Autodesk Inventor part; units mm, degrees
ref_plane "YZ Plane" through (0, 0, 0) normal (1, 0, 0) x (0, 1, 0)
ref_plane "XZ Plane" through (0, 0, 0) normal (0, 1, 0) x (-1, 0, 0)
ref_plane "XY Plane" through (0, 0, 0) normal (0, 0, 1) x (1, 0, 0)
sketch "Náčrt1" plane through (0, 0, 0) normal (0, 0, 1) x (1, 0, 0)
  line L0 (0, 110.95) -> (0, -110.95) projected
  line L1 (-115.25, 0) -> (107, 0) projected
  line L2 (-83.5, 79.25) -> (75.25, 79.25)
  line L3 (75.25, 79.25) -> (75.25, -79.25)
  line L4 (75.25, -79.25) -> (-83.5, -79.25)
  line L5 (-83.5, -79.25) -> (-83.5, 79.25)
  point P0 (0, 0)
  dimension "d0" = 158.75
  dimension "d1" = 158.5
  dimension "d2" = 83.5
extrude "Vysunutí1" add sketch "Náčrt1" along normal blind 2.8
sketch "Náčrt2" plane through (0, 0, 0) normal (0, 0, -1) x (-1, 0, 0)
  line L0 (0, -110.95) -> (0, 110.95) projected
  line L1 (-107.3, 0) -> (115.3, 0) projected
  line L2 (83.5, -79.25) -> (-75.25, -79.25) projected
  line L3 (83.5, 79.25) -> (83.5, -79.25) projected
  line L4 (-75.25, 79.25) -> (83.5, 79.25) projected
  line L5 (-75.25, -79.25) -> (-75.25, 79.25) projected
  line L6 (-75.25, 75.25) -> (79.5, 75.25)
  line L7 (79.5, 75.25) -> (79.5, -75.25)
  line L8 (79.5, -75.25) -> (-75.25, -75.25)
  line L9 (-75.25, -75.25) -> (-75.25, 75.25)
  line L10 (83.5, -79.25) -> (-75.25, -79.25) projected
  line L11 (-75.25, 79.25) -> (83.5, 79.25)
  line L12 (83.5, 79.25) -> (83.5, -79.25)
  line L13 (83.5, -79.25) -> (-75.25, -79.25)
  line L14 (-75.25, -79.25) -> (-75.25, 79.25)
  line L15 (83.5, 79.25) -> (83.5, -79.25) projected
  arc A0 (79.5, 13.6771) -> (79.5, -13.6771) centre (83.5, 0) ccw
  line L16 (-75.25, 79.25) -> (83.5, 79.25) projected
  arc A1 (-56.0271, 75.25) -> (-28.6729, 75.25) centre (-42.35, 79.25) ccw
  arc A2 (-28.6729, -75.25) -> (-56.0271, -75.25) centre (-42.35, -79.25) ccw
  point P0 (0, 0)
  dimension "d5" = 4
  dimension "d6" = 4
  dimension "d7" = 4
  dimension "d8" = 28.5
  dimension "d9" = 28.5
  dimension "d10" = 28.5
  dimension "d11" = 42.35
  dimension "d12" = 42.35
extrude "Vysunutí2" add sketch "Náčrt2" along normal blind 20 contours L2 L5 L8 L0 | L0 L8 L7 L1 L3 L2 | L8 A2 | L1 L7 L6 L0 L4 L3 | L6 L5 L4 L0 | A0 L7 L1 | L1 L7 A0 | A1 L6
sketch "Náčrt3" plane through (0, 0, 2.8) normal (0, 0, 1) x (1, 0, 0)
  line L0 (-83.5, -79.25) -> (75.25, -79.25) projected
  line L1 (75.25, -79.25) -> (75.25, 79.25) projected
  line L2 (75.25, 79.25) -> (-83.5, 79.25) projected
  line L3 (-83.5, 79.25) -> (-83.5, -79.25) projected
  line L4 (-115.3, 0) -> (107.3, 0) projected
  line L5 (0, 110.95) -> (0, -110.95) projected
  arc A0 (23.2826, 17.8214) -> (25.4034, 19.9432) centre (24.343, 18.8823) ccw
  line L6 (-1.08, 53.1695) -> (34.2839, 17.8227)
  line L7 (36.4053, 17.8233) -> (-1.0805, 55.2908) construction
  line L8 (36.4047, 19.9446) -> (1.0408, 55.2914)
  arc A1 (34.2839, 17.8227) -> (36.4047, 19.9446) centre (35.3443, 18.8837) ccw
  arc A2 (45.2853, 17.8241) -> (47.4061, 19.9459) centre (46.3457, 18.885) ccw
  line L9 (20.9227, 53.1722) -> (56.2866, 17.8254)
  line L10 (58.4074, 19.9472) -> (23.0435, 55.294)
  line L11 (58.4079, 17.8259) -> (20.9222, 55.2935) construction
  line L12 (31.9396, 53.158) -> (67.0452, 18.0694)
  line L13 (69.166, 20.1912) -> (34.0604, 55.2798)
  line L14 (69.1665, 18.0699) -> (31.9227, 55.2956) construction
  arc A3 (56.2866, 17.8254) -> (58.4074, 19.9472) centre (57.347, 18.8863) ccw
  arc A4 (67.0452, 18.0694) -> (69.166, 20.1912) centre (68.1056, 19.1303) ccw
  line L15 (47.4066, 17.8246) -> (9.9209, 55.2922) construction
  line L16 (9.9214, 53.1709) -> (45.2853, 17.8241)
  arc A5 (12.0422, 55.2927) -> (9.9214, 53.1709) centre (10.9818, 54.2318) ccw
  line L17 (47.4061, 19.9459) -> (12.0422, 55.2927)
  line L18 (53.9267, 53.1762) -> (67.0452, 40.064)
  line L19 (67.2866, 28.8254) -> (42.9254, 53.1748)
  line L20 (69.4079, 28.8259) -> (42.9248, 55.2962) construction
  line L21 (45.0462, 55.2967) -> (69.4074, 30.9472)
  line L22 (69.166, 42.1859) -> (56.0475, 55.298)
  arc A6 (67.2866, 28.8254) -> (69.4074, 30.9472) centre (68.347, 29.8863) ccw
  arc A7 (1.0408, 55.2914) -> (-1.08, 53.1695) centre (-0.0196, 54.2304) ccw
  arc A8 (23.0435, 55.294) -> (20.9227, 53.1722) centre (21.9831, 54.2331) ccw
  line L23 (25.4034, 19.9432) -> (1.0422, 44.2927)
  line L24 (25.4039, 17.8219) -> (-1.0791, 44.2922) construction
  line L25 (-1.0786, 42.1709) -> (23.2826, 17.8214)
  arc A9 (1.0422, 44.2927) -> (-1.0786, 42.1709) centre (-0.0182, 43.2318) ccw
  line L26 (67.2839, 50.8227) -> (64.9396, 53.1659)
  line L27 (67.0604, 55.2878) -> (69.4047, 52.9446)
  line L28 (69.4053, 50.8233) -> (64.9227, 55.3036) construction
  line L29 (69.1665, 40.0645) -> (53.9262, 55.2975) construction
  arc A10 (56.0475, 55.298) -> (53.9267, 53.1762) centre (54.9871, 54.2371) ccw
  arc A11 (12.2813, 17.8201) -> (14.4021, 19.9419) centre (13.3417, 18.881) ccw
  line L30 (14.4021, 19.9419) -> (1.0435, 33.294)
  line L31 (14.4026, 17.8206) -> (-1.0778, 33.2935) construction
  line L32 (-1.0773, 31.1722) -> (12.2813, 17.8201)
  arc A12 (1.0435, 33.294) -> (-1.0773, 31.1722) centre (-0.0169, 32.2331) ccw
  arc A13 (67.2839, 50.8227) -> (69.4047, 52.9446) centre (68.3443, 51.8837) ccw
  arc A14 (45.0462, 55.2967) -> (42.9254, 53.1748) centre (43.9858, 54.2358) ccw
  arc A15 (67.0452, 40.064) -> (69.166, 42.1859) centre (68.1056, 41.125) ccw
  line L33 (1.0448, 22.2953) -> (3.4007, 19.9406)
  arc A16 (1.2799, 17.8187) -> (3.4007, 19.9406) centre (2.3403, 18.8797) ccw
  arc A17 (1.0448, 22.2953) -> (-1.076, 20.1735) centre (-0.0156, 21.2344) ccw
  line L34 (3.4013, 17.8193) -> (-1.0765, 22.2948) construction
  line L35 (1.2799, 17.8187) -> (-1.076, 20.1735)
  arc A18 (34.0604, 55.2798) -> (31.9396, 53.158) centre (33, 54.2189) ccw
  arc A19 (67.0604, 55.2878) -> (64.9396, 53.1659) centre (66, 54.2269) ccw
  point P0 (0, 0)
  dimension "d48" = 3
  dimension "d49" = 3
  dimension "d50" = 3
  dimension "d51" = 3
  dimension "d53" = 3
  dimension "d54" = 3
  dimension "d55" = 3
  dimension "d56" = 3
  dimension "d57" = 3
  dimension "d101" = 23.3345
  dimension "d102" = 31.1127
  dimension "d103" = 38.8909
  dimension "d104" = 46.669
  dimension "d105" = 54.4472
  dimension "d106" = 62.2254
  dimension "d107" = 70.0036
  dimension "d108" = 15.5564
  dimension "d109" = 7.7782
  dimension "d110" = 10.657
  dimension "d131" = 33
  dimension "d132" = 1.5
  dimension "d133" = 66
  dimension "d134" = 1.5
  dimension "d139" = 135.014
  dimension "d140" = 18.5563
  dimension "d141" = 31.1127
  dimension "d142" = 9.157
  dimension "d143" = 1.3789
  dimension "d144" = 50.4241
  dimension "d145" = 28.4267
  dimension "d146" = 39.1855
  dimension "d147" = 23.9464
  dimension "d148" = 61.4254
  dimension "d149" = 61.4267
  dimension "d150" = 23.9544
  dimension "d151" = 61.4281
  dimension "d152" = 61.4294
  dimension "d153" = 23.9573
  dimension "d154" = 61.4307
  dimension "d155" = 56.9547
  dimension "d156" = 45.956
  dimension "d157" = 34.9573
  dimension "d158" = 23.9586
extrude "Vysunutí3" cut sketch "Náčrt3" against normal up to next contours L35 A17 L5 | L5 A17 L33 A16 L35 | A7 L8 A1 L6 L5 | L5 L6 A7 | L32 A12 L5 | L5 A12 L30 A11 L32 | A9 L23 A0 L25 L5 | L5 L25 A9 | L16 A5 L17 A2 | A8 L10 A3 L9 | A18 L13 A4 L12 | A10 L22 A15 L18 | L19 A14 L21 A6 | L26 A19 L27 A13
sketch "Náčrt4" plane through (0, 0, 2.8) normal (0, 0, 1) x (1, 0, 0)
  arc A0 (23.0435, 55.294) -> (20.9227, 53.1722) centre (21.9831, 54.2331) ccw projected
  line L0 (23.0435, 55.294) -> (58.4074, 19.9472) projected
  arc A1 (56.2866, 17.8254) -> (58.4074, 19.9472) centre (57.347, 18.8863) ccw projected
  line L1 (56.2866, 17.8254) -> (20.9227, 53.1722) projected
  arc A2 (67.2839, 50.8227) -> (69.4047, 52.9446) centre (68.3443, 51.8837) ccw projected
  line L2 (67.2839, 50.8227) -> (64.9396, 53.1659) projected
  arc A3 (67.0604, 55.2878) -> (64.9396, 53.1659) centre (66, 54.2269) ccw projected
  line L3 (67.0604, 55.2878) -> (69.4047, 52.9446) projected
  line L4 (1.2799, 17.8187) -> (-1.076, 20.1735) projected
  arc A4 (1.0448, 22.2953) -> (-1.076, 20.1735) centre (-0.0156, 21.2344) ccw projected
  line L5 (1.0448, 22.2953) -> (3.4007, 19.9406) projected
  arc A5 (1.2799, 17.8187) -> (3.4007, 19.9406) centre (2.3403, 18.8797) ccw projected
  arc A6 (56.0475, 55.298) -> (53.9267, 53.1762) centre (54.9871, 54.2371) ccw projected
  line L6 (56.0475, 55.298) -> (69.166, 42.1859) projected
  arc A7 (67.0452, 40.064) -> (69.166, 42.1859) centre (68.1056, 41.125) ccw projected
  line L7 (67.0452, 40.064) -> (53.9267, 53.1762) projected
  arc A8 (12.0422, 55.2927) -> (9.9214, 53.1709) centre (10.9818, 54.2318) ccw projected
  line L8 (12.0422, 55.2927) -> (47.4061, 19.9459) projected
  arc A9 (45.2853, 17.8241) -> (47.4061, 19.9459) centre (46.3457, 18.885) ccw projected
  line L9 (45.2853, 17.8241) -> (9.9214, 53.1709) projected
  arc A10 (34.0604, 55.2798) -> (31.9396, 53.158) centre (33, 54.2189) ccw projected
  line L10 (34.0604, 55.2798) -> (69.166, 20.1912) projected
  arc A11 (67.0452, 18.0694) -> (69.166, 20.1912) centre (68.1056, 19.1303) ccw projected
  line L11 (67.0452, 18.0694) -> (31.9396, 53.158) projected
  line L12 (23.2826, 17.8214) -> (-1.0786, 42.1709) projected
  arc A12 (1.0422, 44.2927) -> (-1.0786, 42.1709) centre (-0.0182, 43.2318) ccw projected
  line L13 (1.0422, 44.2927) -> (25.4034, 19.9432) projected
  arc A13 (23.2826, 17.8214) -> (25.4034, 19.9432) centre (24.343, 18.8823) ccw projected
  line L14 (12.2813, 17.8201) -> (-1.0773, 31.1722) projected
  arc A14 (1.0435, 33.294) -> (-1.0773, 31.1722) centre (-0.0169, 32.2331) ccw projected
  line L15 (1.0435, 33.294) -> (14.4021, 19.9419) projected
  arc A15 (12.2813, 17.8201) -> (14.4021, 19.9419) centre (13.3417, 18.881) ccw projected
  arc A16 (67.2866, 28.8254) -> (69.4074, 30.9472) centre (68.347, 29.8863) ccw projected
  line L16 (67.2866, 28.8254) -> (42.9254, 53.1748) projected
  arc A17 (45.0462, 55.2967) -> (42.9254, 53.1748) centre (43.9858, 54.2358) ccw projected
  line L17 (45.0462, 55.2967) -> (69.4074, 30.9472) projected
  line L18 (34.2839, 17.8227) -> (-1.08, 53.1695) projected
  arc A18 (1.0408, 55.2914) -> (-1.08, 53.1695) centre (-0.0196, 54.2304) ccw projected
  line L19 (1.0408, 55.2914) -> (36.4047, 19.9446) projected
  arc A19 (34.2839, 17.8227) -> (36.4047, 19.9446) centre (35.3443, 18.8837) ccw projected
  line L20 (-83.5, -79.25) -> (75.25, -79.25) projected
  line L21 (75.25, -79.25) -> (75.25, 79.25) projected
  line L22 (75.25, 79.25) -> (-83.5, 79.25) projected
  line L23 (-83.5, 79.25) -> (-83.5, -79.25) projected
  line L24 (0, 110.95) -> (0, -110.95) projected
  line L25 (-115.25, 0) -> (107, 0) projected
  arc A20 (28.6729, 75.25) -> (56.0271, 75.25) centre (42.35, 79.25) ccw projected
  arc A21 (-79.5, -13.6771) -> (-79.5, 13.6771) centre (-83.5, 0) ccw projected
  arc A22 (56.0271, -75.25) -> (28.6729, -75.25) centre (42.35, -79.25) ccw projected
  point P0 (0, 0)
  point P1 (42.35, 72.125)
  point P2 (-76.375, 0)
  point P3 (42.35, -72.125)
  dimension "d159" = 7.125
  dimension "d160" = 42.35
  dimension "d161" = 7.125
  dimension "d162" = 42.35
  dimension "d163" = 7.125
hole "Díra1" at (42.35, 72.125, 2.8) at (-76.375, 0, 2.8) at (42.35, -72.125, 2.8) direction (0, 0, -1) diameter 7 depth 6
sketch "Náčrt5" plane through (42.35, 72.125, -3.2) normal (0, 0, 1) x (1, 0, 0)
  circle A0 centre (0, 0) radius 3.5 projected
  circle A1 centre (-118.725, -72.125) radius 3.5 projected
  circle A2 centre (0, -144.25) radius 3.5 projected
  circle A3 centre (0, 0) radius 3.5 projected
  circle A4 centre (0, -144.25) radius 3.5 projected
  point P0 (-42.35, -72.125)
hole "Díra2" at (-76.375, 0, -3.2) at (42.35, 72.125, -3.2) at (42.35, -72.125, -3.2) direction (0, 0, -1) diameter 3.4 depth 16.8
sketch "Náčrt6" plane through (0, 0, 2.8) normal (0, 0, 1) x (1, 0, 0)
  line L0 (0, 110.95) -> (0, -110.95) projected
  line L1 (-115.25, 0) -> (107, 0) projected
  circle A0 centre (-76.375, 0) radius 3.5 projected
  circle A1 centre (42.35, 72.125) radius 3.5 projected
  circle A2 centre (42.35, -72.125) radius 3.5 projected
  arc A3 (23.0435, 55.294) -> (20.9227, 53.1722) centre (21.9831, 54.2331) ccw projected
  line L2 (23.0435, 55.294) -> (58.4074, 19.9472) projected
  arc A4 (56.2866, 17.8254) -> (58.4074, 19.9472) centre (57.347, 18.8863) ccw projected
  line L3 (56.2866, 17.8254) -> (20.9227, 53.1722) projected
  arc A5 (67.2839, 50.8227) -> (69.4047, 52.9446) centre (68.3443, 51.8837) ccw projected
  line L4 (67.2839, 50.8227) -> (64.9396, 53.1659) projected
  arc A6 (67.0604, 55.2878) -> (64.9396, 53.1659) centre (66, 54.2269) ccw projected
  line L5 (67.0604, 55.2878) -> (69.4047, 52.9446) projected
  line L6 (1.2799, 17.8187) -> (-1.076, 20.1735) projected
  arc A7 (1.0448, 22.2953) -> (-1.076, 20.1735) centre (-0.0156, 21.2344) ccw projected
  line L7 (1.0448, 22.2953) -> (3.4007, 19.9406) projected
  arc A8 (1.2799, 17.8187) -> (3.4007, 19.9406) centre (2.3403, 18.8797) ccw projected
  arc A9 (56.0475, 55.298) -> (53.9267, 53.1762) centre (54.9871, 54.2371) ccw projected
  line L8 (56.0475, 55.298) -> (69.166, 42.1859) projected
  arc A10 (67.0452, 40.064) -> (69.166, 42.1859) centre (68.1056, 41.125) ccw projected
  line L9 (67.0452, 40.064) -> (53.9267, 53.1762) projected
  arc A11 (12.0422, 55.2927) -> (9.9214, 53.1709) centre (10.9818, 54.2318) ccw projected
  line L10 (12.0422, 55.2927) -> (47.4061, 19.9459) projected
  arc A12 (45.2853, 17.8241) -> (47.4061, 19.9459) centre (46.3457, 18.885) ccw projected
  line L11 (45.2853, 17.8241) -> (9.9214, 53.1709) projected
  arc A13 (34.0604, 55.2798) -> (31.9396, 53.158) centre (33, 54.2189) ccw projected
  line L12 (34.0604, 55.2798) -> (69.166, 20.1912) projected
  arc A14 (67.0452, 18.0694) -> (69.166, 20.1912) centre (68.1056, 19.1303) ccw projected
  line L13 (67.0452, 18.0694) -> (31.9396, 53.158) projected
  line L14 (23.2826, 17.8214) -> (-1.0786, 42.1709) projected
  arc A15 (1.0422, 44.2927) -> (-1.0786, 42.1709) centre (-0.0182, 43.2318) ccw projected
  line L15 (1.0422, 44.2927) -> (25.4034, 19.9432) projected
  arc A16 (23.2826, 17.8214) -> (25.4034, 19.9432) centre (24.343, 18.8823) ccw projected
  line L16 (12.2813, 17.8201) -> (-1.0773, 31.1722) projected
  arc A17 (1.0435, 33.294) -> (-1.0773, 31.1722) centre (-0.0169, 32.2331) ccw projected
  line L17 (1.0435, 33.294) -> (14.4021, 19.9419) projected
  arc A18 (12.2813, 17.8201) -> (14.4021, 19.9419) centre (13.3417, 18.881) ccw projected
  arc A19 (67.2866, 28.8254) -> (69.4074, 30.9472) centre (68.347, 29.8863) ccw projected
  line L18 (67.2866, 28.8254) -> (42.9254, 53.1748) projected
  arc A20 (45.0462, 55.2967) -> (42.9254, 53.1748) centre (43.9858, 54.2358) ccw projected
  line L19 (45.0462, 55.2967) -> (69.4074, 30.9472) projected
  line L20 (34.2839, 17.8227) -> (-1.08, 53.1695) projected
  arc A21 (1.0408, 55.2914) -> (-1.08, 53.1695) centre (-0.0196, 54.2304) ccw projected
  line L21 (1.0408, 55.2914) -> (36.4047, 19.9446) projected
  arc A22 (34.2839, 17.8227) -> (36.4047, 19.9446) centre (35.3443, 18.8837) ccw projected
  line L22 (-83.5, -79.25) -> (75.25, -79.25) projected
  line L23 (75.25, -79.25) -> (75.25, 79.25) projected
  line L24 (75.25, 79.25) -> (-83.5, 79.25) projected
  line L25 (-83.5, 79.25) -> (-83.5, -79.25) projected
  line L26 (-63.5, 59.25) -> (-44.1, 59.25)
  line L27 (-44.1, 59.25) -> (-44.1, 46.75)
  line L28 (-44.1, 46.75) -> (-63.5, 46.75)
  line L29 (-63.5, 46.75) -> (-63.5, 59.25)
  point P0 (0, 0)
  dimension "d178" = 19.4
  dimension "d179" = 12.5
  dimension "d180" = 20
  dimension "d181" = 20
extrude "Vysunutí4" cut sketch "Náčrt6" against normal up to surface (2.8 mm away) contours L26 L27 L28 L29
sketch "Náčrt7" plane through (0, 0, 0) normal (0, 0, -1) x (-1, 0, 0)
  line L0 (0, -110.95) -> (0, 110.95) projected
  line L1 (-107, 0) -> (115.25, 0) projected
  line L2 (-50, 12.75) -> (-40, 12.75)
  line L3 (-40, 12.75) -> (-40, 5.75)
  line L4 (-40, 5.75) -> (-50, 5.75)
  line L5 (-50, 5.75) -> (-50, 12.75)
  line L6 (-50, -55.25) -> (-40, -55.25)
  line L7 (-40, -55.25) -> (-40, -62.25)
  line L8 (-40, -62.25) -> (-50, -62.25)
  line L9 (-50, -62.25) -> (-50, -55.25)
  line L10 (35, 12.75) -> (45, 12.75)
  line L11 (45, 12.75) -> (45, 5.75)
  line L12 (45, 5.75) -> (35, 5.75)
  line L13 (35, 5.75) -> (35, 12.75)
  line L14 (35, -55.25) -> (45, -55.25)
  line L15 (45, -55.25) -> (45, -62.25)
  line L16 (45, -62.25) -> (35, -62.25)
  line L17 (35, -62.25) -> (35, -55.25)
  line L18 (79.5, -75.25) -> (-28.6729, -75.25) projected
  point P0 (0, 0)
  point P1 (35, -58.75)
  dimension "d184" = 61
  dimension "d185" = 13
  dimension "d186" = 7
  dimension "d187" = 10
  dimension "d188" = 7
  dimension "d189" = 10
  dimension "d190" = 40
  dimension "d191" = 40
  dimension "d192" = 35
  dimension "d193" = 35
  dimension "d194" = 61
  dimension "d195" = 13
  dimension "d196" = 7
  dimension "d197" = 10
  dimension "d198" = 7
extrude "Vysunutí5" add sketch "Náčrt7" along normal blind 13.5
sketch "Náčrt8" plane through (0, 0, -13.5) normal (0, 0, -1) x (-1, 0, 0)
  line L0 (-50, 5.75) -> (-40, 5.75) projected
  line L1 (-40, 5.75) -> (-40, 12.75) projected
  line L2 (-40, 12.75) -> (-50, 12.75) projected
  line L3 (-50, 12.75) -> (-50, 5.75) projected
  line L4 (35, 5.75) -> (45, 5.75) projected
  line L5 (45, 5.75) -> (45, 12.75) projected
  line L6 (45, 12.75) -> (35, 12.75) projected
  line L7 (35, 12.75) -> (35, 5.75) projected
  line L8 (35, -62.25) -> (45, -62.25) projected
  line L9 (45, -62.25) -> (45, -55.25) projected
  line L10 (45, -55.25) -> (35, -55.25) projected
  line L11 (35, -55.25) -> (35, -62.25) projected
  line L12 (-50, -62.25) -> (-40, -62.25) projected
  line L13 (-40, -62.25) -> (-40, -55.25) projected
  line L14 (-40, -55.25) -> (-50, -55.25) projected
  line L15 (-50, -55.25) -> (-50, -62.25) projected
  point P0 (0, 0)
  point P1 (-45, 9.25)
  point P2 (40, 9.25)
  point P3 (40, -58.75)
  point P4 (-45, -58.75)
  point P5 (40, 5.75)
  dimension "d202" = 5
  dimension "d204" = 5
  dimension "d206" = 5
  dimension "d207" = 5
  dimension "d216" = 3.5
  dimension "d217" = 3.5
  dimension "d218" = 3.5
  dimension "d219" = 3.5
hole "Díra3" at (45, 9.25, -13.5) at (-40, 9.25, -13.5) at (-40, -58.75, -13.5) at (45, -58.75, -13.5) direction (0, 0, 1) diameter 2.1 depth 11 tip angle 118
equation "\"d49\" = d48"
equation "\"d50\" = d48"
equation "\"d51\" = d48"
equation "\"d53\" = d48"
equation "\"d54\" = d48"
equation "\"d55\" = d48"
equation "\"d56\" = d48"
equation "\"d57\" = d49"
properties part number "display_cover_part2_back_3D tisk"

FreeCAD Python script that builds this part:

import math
import FreeCAD as App
import Part
import Sketcher
from FreeCAD import Vector
Q = App.Units.Quantity

doc = App.newDocument("Part")
params = doc.addObject("Spreadsheet::Sheet", "Params")
for row, (alias, value) in enumerate([
    ("sketch1_height", "158.5 mm"),
    ("sketch1_width", "158.75 mm"),
    ("pad1_length", "2.8 mm"),
    ("sketch2_height", "4 mm"),
    ("sketch2_radius", "14.25 mm"),
    ("sketch2_height2", "158.5 mm"),
    ("sketch2_width", "158.75 mm"),
    ("pad2_length", "20 mm"),
    ("sketch3_radius", "1.5 mm"),
    ("sketch3_length", "50 mm"),
    ("sketch4_diameter", "7 mm"),
    ("hole_diameter", "7 mm"),
    ("hole_depth", "6 mm"),
    ("sketch5_diameter", "3.4 mm"),
    ("hole2_diameter", "3.4 mm"),
    ("hole2_depth", "16.8 mm"),
    ("sketch6_width", "19.4 mm"),
    ("sketch6_height", "12.5 mm"),
    ("pocket2_length", "2.8 mm"),
    ("sketch7_width", "10 mm"),
    ("sketch7_height", "7 mm"),
    ("pad3_length", "13.5 mm"),
    ("sketch8_diameter", "2.1 mm"),
    ("hole3_diameter", "2.1 mm"),
    ("hole3_depth", "11 mm"),
], start=1):
    params.set(f"A{row}", alias)
    params.set(f"B{row}", "=" + value)
    params.setAlias(f"B{row}", alias)

body = doc.addObject("PartDesign::Body", "Body")

# Sketch on XY plane
sketch1 = doc.addObject("Sketcher::SketchObject", "Sketch")
body.addObject(sketch1)
sketch1.AttachmentSupport = (doc.XY_Plane, [""])
sketch1.MapMode = "FlatFace"
sketch1.addGeometry([
    Part.LineSegment(Vector(75, 79, 0), Vector(-84, 79, 0)),
    Part.LineSegment(Vector(-84, 79, 0), Vector(-84, -79, 0)),
    Part.LineSegment(Vector(-84, -79, 0), Vector(75, -79, 0)),
    Part.LineSegment(Vector(75, -79, 0), Vector(75, 79, 0)),
], False)
sketch1.addConstraint([
    Sketcher.Constraint("Coincident", 0, 2, 1, 1),
    Sketcher.Constraint("Coincident", 1, 2, 2, 1),
    Sketcher.Constraint("Coincident", 2, 2, 3, 1),
    Sketcher.Constraint("Coincident", 3, 2, 0, 1),
    Sketcher.Constraint("Horizontal", 0),
    Sketcher.Constraint("Vertical", 1),
    Sketcher.Constraint("Horizontal", 2),
    Sketcher.Constraint("Vertical", 3),
    Sketcher.Constraint("DistanceY", 1, 2, 1, 1, Q("158.5 mm")),
    Sketcher.Constraint("DistanceX", 0, 2, 0, 1, Q("158.75 mm")),
    Sketcher.Constraint("DistanceX", 0, 2, -1, 1, Q("83.5 mm")),
    Sketcher.Constraint("DistanceY", -1, 1, 0, 2, Q("79.25 mm")),
])
sketch1.setExpression("Constraints[8]", "Params.sketch1_height")
sketch1.setExpression("Constraints[9]", "Params.sketch1_width")
pad1 = doc.addObject("PartDesign::Pad", "Pad")
body.addObject(pad1)
pad1.Profile = sketch1
pad1.setExpression("Length", "Params.pad1_length")

# Sketch on XY plane
sketch2 = doc.addObject("Sketcher::SketchObject", "Sketch001")
body.addObject(sketch2)
sketch2.AttachmentSupport = (doc.XY_Plane, [""])
sketch2.MapMode = "FlatFace"
sketch2.addGeometry([
    Part.LineSegment(Vector(75.2, -79.2, 0), Vector(-83.5, -79.2, 0)),  # 0
    Part.LineSegment(Vector(-83.5, -79.2, 0), Vector(-83.5, 79.2, 0)),  # 1
    Part.LineSegment(Vector(-83.5, 79.2, 0), Vector(75.2, 79.2, 0)),  # 2
    Part.LineSegment(Vector(75.2, 79.2, 0), Vector(75.2, 75.2, 0)),  # 3
    Part.LineSegment(Vector(75.2, 75.2, 0), Vector(56, 75.2, 0)),  # 4
    Part.ArcOfCircle(Part.Circle(Vector(42.4, 79.2, 0), Vector(0, 0, 1), 14.3), math.radians(-164), math.radians(-16)),  # 5
    Part.LineSegment(Vector(28.7, 75.2, 0), Vector(-79.5, 75.2, 0)),  # 6
    Part.LineSegment(Vector(-79.5, 75.2, 0), Vector(-79.5, 13.7, 0)),  # 7
    Part.ArcOfCircle(Part.Circle(Vector(-83.5, 0, 0), Vector(0, 0, 1), 14.3), math.radians(-74), math.radians(74)),  # 8
    Part.LineSegment(Vector(-79.5, -13.7, 0), Vector(-79.5, -75.2, 0)),  # 9
    Part.LineSegment(Vector(-79.5, -75.2, 0), Vector(28.7, -75.2, 0)),  # 10
    Part.ArcOfCircle(Part.Circle(Vector(42.4, -79.2, 0), Vector(0, 0, 1), 14.3), math.radians(16), math.radians(164)),  # 11
    Part.LineSegment(Vector(56, -75.2, 0), Vector(75.2, -75.2, 0)),  # 12
    Part.LineSegment(Vector(75.2, -75.2, 0), Vector(75.2, -79.2, 0)),  # 13
], False)
sketch2.addConstraint([
    Sketcher.Constraint("Coincident", 0, 2, 1, 1),
    Sketcher.Constraint("Coincident", 1, 2, 2, 1),
    Sketcher.Constraint("Coincident", 2, 2, 3, 1),
    Sketcher.Constraint("Coincident", 3, 2, 4, 1),
    Sketcher.Constraint("Coincident", 4, 2, 5, 2),
    Sketcher.Constraint("Coincident", 5, 1, 6, 1),
    Sketcher.Constraint("Coincident", 6, 2, 7, 1),
    Sketcher.Constraint("Coincident", 7, 2, 8, 2),
    Sketcher.Constraint("Coincident", 8, 1, 9, 1),
    Sketcher.Constraint("Coincident", 9, 2, 10, 1),
    Sketcher.Constraint("Coincident", 10, 2, 11, 2),
    Sketcher.Constraint("Coincident", 11, 1, 12, 1),
    Sketcher.Constraint("Coincident", 12, 2, 13, 1),
    Sketcher.Constraint("Coincident", 13, 2, 0, 1),
    Sketcher.Constraint("Horizontal", 0),
    Sketcher.Constraint("Vertical", 1),
    Sketcher.Constraint("Horizontal", 2),
    Sketcher.Constraint("Vertical", 3),
    Sketcher.Constraint("Horizontal", 4),
    Sketcher.Constraint("Horizontal", 6),
    Sketcher.Constraint("Vertical", 7),
    Sketcher.Constraint("Vertical", 9),
    Sketcher.Constraint("Horizontal", 10),
    Sketcher.Constraint("Horizontal", 12),
    Sketcher.Constraint("Vertical", 13),
    Sketcher.Constraint("Equal", 5, 8),
    Sketcher.Constraint("Equal", 8, 11),
    Sketcher.Constraint("Symmetric", 5, 3, 11, 3, -1),
    Sketcher.Constraint("Symmetric", 7, 2, 8, 1, -1),
    Sketcher.Constraint("Symmetric", 3, 2, 12, 2, -1),
    Sketcher.Constraint("Horizontal", 11, 3, 0, 2),
    Sketcher.Constraint("Horizontal", 5, 3, 1, 2),
    Sketcher.Constraint("Horizontal", 4, 2, 5, 1),
    Sketcher.Constraint("Horizontal", 10, 2, 11, 1),
    Sketcher.Constraint("Vertical", 8, 3, 0, 2),
    Sketcher.Constraint("DistanceY", 3, 2, 3, 1, Q("4 mm")),
    Sketcher.Constraint("Radius", 5, Q("14.25 mm")),
    Sketcher.Constraint("DistanceX", 1, 2, 6, 2, Q("4 mm")),
    Sketcher.Constraint("DistanceX", -1, 1, 5, 3, Q("42.35 mm")),
    Sketcher.Constraint("DistanceY", 1, 1, 1, 2, Q("158.5 mm")),
    Sketcher.Constraint("DistanceX", 0, 2, 0, 1, Q("158.75 mm")),
    Sketcher.Constraint("DistanceX", 8, 3, -1, 1, Q("83.5 mm")),
])
sketch2.setExpression("Constraints[35]", "Params.sketch2_height")
sketch2.setExpression("Constraints[36]", "Params.sketch2_radius")
sketch2.setExpression("Constraints[39]", "Params.sketch2_height2")
sketch2.setExpression("Constraints[40]", "Params.sketch2_width")
pad2 = doc.addObject("PartDesign::Pad", "Pad001")
body.addObject(pad2)
pad2.Profile = sketch2
pad2.setExpression("Length", "Params.pad2_length")
pad2.Reversed = True

# Sketch on XY plane
sketch3 = doc.addObject("Sketcher::SketchObject", "Sketch002")
body.addObject(sketch3)
sketch3.AttachmentSupport = (doc.XY_Plane, [""])
sketch3.MapMode = "FlatFace"
sketch3.AttachmentOffset = App.Placement(Vector(0, 0, 2.8), App.Rotation())
sketch3.addGeometry([
    Part.LineSegment(Vector(-1.1, 20.2, 0), Vector(1.3, 17.8, 0)),  # 0
    Part.ArcOfCircle(Part.Circle(Vector(2.3, 18.9, 0), Vector(0, 0, 1), 1.5), math.radians(-135), math.radians(45)),  # 1
    Part.LineSegment(Vector(3.4, 19.9, 0), Vector(1, 22.3, 0)),  # 2
    Part.ArcOfCircle(Part.Circle(Vector(0, 21.2, 0), Vector(0, 0, 1), 1.5), math.radians(45), math.radians(225)),  # 3
    Part.ArcOfCircle(Part.Circle(Vector(0, 54.2, 0), Vector(0, 0, 1), 1.5), math.radians(45), math.radians(225)),  # 4
    Part.LineSegment(Vector(-1.1, 53.2, 0), Vector(34.3, 17.8, 0)),  # 5
    Part.ArcOfCircle(Part.Circle(Vector(35.3, 18.9, 0), Vector(0, 0, 1), 1.5), math.radians(-135), math.radians(45)),  # 6
    Part.LineSegment(Vector(36.4, 19.9, 0), Vector(1, 55.3, 0)),  # 7
    Part.LineSegment(Vector(-1.1, 31.2, 0), Vector(12.3, 17.8, 0)),  # 8
    Part.ArcOfCircle(Part.Circle(Vector(13.3, 18.9, 0), Vector(0, 0, 1), 1.5), math.radians(-135), math.radians(45)),  # 9
    Part.LineSegment(Vector(14.4, 19.9, 0), Vector(1, 33.3, 0)),  # 10
    Part.ArcOfCircle(Part.Circle(Vector(0, 32.2, 0), Vector(0, 0, 1), 1.5), math.radians(45), math.radians(225)),  # 11
    Part.ArcOfCircle(Part.Circle(Vector(0, 43.2, 0), Vector(0, 0, 1), 1.5), math.radians(45), math.radians(225)),  # 12
    Part.LineSegment(Vector(-1.1, 42.2, 0), Vector(23.3, 17.8, 0)),  # 13
    Part.ArcOfCircle(Part.Circle(Vector(24.3, 18.9, 0), Vector(0, 0, 1), 1.5), math.radians(-135), math.radians(45)),  # 14
    Part.LineSegment(Vector(25.4, 19.9, 0), Vector(1, 44.3, 0)),  # 15
    Part.LineSegment(Vector(9.9, 53.2, 0), Vector(45.3, 17.8, 0)),  # 16
    Part.ArcOfCircle(Part.Circle(Vector(46.3, 18.9, 0), Vector(0, 0, 1), 1.5), math.radians(-135), math.radians(45)),  # 17
    Part.LineSegment(Vector(47.4, 19.9, 0), Vector(12, 55.3, 0)),  # 18
    Part.ArcOfCircle(Part.Circle(Vector(11, 54.2, 0), Vector(0, 0, 1), 1.5), math.radians(45), math.radians(225)),  # 19
    Part.ArcOfCircle(Part.Circle(Vector(22, 54.2, 0), Vector(0, 0, 1), 1.5), math.radians(45), math.radians(225)),  # 20
    Part.LineSegment(Vector(20.9, 53.2, 0), Vector(56.3, 17.8, 0)),  # 21
    Part.ArcOfCircle(Part.Circle(Vector(57.3, 18.9, 0), Vector(0, 0, 1), 1.5), math.radians(-135), math.radians(45)),  # 22
    Part.LineSegment(Vector(58.4, 19.9, 0), Vector(23, 55.3, 0)),  # 23
    Part.ArcOfCircle(Part.Circle(Vector(33, 54.2, 0), Vector(0, 0, 1), 1.5), math.radians(45), math.radians(225)),  # 24
    Part.LineSegment(Vector(31.9, 53.2, 0), Vector(67, 18.1, 0)),  # 25
    Part.ArcOfCircle(Part.Circle(Vector(68.1, 19.1, 0), Vector(0, 0, 1), 1.5), math.radians(-135), math.radians(45)),  # 26
    Part.LineSegment(Vector(69.2, 20.2, 0), Vector(34.1, 55.3, 0)),  # 27
    Part.ArcOfCircle(Part.Circle(Vector(55, 54.2, 0), Vector(0, 0, 1), 1.5), math.radians(45), math.radians(225)),  # 28
    Part.LineSegment(Vector(53.9, 53.2, 0), Vector(67, 40.1, 0)),  # 29
    Part.ArcOfCircle(Part.Circle(Vector(68.1, 41.1, 0), Vector(0, 0, 1), 1.5), math.radians(-135), math.radians(45)),  # 30
    Part.LineSegment(Vector(69.2, 42.2, 0), Vector(56, 55.3, 0)),  # 31
    Part.LineSegment(Vector(42.9, 53.2, 0), Vector(67.3, 28.8, 0)),  # 32
    Part.ArcOfCircle(Part.Circle(Vector(68.3, 29.9, 0), Vector(0, 0, 1), 1.5), math.radians(-135), math.radians(45)),  # 33
    Part.LineSegment(Vector(69.4, 30.9, 0), Vector(45, 55.3, 0)),  # 34
    Part.ArcOfCircle(Part.Circle(Vector(44, 54.2, 0), Vector(0, 0, 1), 1.5), math.radians(45), math.radians(225)),  # 35
    Part.LineSegment(Vector(64.9, 53.2, 0), Vector(67.3, 50.8, 0)),  # 36
    Part.ArcOfCircle(Part.Circle(Vector(68.3, 51.9, 0), Vector(0, 0, 1), 1.5), math.radians(-135), math.radians(45)),  # 37
    Part.LineSegment(Vector(69.4, 52.9, 0), Vector(67.1, 55.3, 0)),  # 38
    Part.ArcOfCircle(Part.Circle(Vector(66, 54.2, 0), Vector(0, 0, 1), 1.5), math.radians(45), math.radians(225)),  # 39
], False)
sketch3.addConstraint([
    Sketcher.Constraint("Tangent", 0, 2, 1, 1),
    Sketcher.Constraint("Tangent", 1, 2, 2, 1),
    Sketcher.Constraint("Tangent", 2, 2, 3, 1),
    Sketcher.Constraint("Tangent", 3, 2, 0, 1),
    Sketcher.Constraint("Tangent", 4, 2, 5, 1),
    Sketcher.Constraint("Tangent", 5, 2, 6, 1),
    Sketcher.Constraint("Tangent", 6, 2, 7, 1),
    Sketcher.Constraint("Tangent", 7, 2, 4, 1),
    Sketcher.Constraint("Tangent", 8, 2, 9, 1),
    Sketcher.Constraint("Tangent", 9, 2, 10, 1),
    Sketcher.Constraint("Tangent", 10, 2, 11, 1),
    Sketcher.Constraint("Tangent", 11, 2, 8, 1),
    Sketcher.Constraint("Tangent", 12, 2, 13, 1),
    Sketcher.Constraint("Tangent", 13, 2, 14, 1),
    Sketcher.Constraint("Tangent", 14, 2, 15, 1),
    Sketcher.Constraint("Tangent", 15, 2, 12, 1),
    Sketcher.Constraint("Tangent", 16, 2, 17, 1),
    Sketcher.Constraint("Tangent", 17, 2, 18, 1),
    Sketcher.Constraint("Tangent", 18, 2, 19, 1),
    Sketcher.Constraint("Tangent", 19, 2, 16, 1),
    Sketcher.Constraint("Tangent", 20, 2, 21, 1),
    Sketcher.Constraint("Tangent", 21, 2, 22, 1),
    Sketcher.Constraint("Tangent", 22, 2, 23, 1),
    Sketcher.Constraint("Tangent", 23, 2, 20, 1),
    Sketcher.Constraint("Tangent", 24, 2, 25, 1),
    Sketcher.Constraint("Tangent", 25, 2, 26, 1),
    Sketcher.Constraint("Tangent", 26, 2, 27, 1),
    Sketcher.Constraint("Tangent", 27, 2, 24, 1),
    Sketcher.Constraint("Tangent", 28, 2, 29, 1),
    Sketcher.Constraint("Tangent", 29, 2, 30, 1),
    Sketcher.Constraint("Tangent", 30, 2, 31, 1),
    Sketcher.Constraint("Tangent", 31, 2, 28, 1),
    Sketcher.Constraint("Tangent", 32, 2, 33, 1),
    Sketcher.Constraint("Tangent", 33, 2, 34, 1),
    Sketcher.Constraint("Tangent", 34, 2, 35, 1),
    Sketcher.Constraint("Tangent", 35, 2, 32, 1),
    Sketcher.Constraint("Tangent", 36, 2, 37, 1),
    Sketcher.Constraint("Tangent", 37, 2, 38, 1),
    Sketcher.Constraint("Tangent", 38, 2, 39, 1),
    Sketcher.Constraint("Tangent", 39, 2, 36, 1),
    Sketcher.Constraint("Equal", 1, 3),
    Sketcher.Constraint("Equal", 3, 4),
    Sketcher.Constraint("Equal", 4, 6),
    Sketcher.Constraint("Equal", 6, 9),
    Sketcher.Constraint("Equal", 9, 11),
    Sketcher.Constraint("Equal", 11, 12),
    Sketcher.Constraint("Equal", 12, 14),
    Sketcher.Constraint("Equal", 14, 17),
    Sketcher.Constraint("Equal", 17, 19),
    Sketcher.Constraint("Equal", 19, 20),
    Sketcher.Constraint("Equal", 20, 22),
    Sketcher.Constraint("Equal", 22, 24),
    Sketcher.Constraint("Equal", 24, 26),
    Sketcher.Constraint("Equal", 26, 28),
    Sketcher.Constraint("Equal", 28, 30),
    Sketcher.Constraint("Equal", 30, 33),
    Sketcher.Constraint("Equal", 33, 35),
    Sketcher.Constraint("Equal", 35, 37),
    Sketcher.Constraint("Equal", 37, 39),
    Sketcher.Constraint("Parallel", 2, 5),
    Sketcher.Constraint("Parallel", 7, 8),
    Sketcher.Constraint("Parallel", 10, 13),
    Sketcher.Constraint("Parallel", 15, 16),
    Sketcher.Constraint("Parallel", 18, 21),
    Sketcher.Constraint("Parallel", 23, 25),
    Sketcher.Constraint("Parallel", 27, 29),
    Sketcher.Constraint("Parallel", 31, 32),
    Sketcher.Constraint("Parallel", 34, 36),
    Sketcher.Constraint("Vertical", 26, 3, 30, 3),
    Sketcher.Constraint("Equal", 7, 16),
    Sketcher.Constraint("Equal", 18, 21),
    Sketcher.Constraint("Equal", 15, 32),
    Sketcher.Constraint("Radius", 1, Q("1.5 mm")),
    Sketcher.Constraint("DistanceX", -1, 1, 24, 3, Q("33 mm")),
    Sketcher.Constraint("DistanceX", -1, 1, 39, 3, Q("66 mm")),
    Sketcher.Constraint("Distance", 5, Q("50 mm")),
    Sketcher.Constraint("DistanceX", 12, 3, 19, 3, Q("11 mm")),
    Sketcher.Constraint("DistanceY", 12, 3, 19, 3, Q("11 mm")),
    Sketcher.Constraint("DistanceX", 11, 3, 20, 3, Q("22 mm")),
    Sketcher.Constraint("DistanceY", 11, 3, 20, 3, Q("22 mm")),
    Sketcher.Constraint("DistanceX", 22, 3, 33, 3, Q("11 mm")),
    Sketcher.Constraint("DistanceY", 22, 3, 33, 3, Q("11 mm")),
    Sketcher.Constraint("DistanceX", -1, 1, 0, 2, Q("1.28 mm")),
    Sketcher.Constraint("DistanceX", 4, 2, -1, 1, Q("1.08 mm")),
    Sketcher.Constraint("DistanceY", -1, 1, 8, 2, Q("17.82 mm")),
    Sketcher.Constraint("DistanceX", 3, 3, 6, 3, Q("35.36 mm")),
    Sketcher.Constraint("DistanceX", 12, 3, 9, 3, Q("13.36 mm")),
    Sketcher.Constraint("DistanceX", 11, 3, 14, 3, Q("24.36 mm")),
    Sketcher.Constraint("DistanceX", 17, 3, 26, 3, Q("21.76 mm")),
    Sketcher.Constraint("DistanceX", 28, 3, 22, 3, Q("2.36 mm")),
    Sketcher.Constraint("DistanceY", 17, 3, 30, 3, Q("22.24 mm")),
    Sketcher.Constraint("Distance", 0, Q("3.331 mm")),
    Sketcher.Constraint("Distance", 29, Q("18.548 mm")),
    Sketcher.Constraint("DistanceX", 11, 3, -1, 1, Q("0.017 mm")),
    Sketcher.Constraint("DistanceY", -1, 1, 17, 3, Q("18.885 mm")),
    Sketcher.Constraint("DistanceY", -1, 1, 24, 3, Q("54.219 mm")),
    Sketcher.Constraint("DistanceY", -1, 1, 39, 3, Q("54.227 mm")),
    Sketcher.Constraint("DistanceX", -1, 1, 36, 2, Q("67.284 mm")),
    Sketcher.Constraint("DistanceY", 3, 3, 4, 3, Q("32.996 mm")),
    Sketcher.Constraint("DistanceY", 1, 3, 12, 3, Q("24.352 mm")),
])
sketch3.setExpression("Constraints[72]", "Params.sketch3_radius")
sketch3.setExpression("Constraints[75]", "Params.sketch3_length")
pocket1 = doc.addObject("PartDesign::Pocket", "Pocket")
body.addObject(pocket1)
pocket1.Profile = sketch3
pocket1.Type = "UpToFirst"

# Sketch on XY plane
sketch4 = doc.addObject("Sketcher::SketchObject", "Sketch003")
body.addObject(sketch4)
sketch4.AttachmentSupport = (doc.XY_Plane, [""])
sketch4.MapMode = "FlatFace"
sketch4.AttachmentOffset = App.Placement(Vector(0, 0, 2.8), App.Rotation())
sketch4.addGeometry([
    Part.Circle(Vector(42.4, 72.1, 0), Vector(0, 0, 1), 3.5),
    Part.Circle(Vector(-76.4, 0, 0), Vector(0, 0, 1), 3.5),
    Part.Circle(Vector(42.4, -72.1, 0), Vector(0, 0, 1), 3.5),
], False)
sketch4.addConstraint([
    Sketcher.Constraint("Equal", 0, 1),
    Sketcher.Constraint("Equal", 1, 2),
    Sketcher.Constraint("Symmetric", 0, 3, 2, 3, -1),
    Sketcher.Constraint("PointOnObject", 1, 3, -1),
    Sketcher.Constraint("Diameter", 0, Q("7 mm")),
    Sketcher.Constraint("DistanceX", -1, 1, 0, 3, Q("42.35 mm")),
    Sketcher.Constraint("DistanceY", 2, 3, 0, 3, Q("144.25 mm")),
    Sketcher.Constraint("DistanceX", 1, 3, -1, 1, Q("76.375 mm")),
])
sketch4.setExpression("Constraints[4]", "Params.sketch4_diameter")
doc.recompute()
hole = doc.addObject("PartDesign::Hole", "Hole")
body.addObject(hole)
hole.Profile = sketch4
hole.ThreadType = "None"
hole.setExpression("Diameter", "Params.hole_diameter")
hole.DepthType = "Dimension"
hole.setExpression("Depth", "Params.hole_depth")
hole.DrillPoint = "Flat"

# Sketch on XY plane
sketch5 = doc.addObject("Sketcher::SketchObject", "Sketch004")
body.addObject(sketch5)
sketch5.AttachmentSupport = (doc.XY_Plane, [""])
sketch5.MapMode = "FlatFace"
sketch5.AttachmentOffset = App.Placement(Vector(0, 0, -3.2), App.Rotation())
sketch5.addGeometry([
    Part.Circle(Vector(-76.4, 0, 0), Vector(0, 0, 1), 1.7),
    Part.Circle(Vector(42.4, 72.1, 0), Vector(0, 0, 1), 1.7),
    Part.Circle(Vector(42.4, -72.1, 0), Vector(0, 0, 1), 1.7),
], False)
sketch5.addConstraint([
    Sketcher.Constraint("Equal", 0, 1),
    Sketcher.Constraint("Equal", 1, 2),
    Sketcher.Constraint("Symmetric", 1, 3, 2, 3, -1),
    Sketcher.Constraint("PointOnObject", 0, 3, -1),
    Sketcher.Constraint("Diameter", 0, Q("3.4 mm")),
    Sketcher.Constraint("DistanceX", -1, 1, 1, 3, Q("42.35 mm")),
    Sketcher.Constraint("DistanceY", 2, 3, 1, 3, Q("144.25 mm")),
    Sketcher.Constraint("DistanceX", 0, 3, -1, 1, Q("76.375 mm")),
])
sketch5.setExpression("Constraints[4]", "Params.sketch5_diameter")
doc.recompute()
hole2 = doc.addObject("PartDesign::Hole", "Hole001")
body.addObject(hole2)
hole2.Profile = sketch5
hole2.ThreadType = "None"
hole2.setExpression("Diameter", "Params.hole2_diameter")
hole2.DepthType = "Dimension"
hole2.setExpression("Depth", "Params.hole2_depth")
hole2.DrillPoint = "Flat"

# Sketch on XY plane
sketch6 = doc.addObject("Sketcher::SketchObject", "Sketch005")
body.addObject(sketch6)
sketch6.AttachmentSupport = (doc.XY_Plane, [""])
sketch6.MapMode = "FlatFace"
sketch6.AttachmentOffset = App.Placement(Vector(0, 0, 2.8), App.Rotation())
sketch6.addGeometry([
    Part.LineSegment(Vector(-44, 59, 0), Vector(-64, 59, 0)),
    Part.LineSegment(Vector(-64, 59, 0), Vector(-64, 47, 0)),
    Part.LineSegment(Vector(-64, 47, 0), Vector(-44, 47, 0)),
    Part.LineSegment(Vector(-44, 47, 0), Vector(-44, 59, 0)),
], False)
sketch6.addConstraint([
    Sketcher.Constraint("Coincident", 0, 2, 1, 1),
    Sketcher.Constraint("Coincident", 1, 2, 2, 1),
    Sketcher.Constraint("Coincident", 2, 2, 3, 1),
    Sketcher.Constraint("Coincident", 3, 2, 0, 1),
    Sketcher.Constraint("Horizontal", 0),
    Sketcher.Constraint("Vertical", 1),
    Sketcher.Constraint("Horizontal", 2),
    Sketcher.Constraint("Vertical", 3),
    Sketcher.Constraint("DistanceX", 0, 2, 0, 1, Q("19.4 mm")),
    Sketcher.Constraint("DistanceY", 1, 2, 1, 1, Q("12.5 mm")),
    Sketcher.Constraint("DistanceX", 0, 2, -1, 1, Q("63.5 mm")),
    Sketcher.Constraint("DistanceY", -1, 1, 0, 2, Q("59.25 mm")),
])
sketch6.setExpression("Constraints[8]", "Params.sketch6_width")
sketch6.setExpression("Constraints[9]", "Params.sketch6_height")
pocket2 = doc.addObject("PartDesign::Pocket", "Pocket001")
body.addObject(pocket2)
pocket2.Profile = sketch6
pocket2.setExpression("Length", "Params.pocket2_length")

# Sketch on XY plane
sketch7 = doc.addObject("Sketcher::SketchObject", "Sketch006")
body.addObject(sketch7)
sketch7.AttachmentSupport = (doc.XY_Plane, [""])
sketch7.MapMode = "FlatFace"
sketch7.addGeometry([
    Part.LineSegment(Vector(40, 13, 0), Vector(50, 13, 0)),  # 0
    Part.LineSegment(Vector(50, 13, 0), Vector(50, 6, 0)),  # 1
    Part.LineSegment(Vector(50, 6, 0), Vector(40, 6, 0)),  # 2
    Part.LineSegment(Vector(40, 6, 0), Vector(40, 13, 0)),  # 3
    Part.LineSegment(Vector(40, -55, 0), Vector(50, -55, 0)),  # 4
    Part.LineSegment(Vector(50, -55, 0), Vector(50, -62, 0)),  # 5
    Part.LineSegment(Vector(50, -62, 0), Vector(40, -62, 0)),  # 6
    Part.LineSegment(Vector(40, -62, 0), Vector(40, -55, 0)),  # 7
    Part.LineSegment(Vector(-45, 13, 0), Vector(-35, 13, 0)),  # 8
    Part.LineSegment(Vector(-35, 13, 0), Vector(-35, 6, 0)),  # 9
    Part.LineSegment(Vector(-35, 6, 0), Vector(-45, 6, 0)),  # 10
    Part.LineSegment(Vector(-45, 6, 0), Vector(-45, 13, 0)),  # 11
    Part.LineSegment(Vector(-45, -55, 0), Vector(-35, -55, 0)),  # 12
    Part.LineSegment(Vector(-35, -55, 0), Vector(-35, -62, 0)),  # 13
    Part.LineSegment(Vector(-35, -62, 0), Vector(-45, -62, 0)),  # 14
    Part.LineSegment(Vector(-45, -62, 0), Vector(-45, -55, 0)),  # 15
], False)
sketch7.addConstraint([
    Sketcher.Constraint("Coincident", 0, 2, 1, 1),
    Sketcher.Constraint("Coincident", 1, 2, 2, 1),
    Sketcher.Constraint("Coincident", 2, 2, 3, 1),
    Sketcher.Constraint("Coincident", 3, 2, 0, 1),
    Sketcher.Constraint("Coincident", 4, 2, 5, 1),
    Sketcher.Constraint("Coincident", 5, 2, 6, 1),
    Sketcher.Constraint("Coincident", 6, 2, 7, 1),
    Sketcher.Constraint("Coincident", 7, 2, 4, 1),
    Sketcher.Constraint("Coincident", 8, 2, 9, 1),
    Sketcher.Constraint("Coincident", 9, 2, 10, 1),
    Sketcher.Constraint("Coincident", 10, 2, 11, 1),
    Sketcher.Constraint("Coincident", 11, 2, 8, 1),
    Sketcher.Constraint("Coincident", 12, 2, 13, 1),
    Sketcher.Constraint("Coincident", 13, 2, 14, 1),
    Sketcher.Constraint("Coincident", 14, 2, 15, 1),
    Sketcher.Constraint("Coincident", 15, 2, 12, 1),
    Sketcher.Constraint("Horizontal", 0),
    Sketcher.Constraint("Vertical", 1),
    Sketcher.Constraint("Horizontal", 2),
    Sketcher.Constraint("Vertical", 3),
    Sketcher.Constraint("Horizontal", 4),
    Sketcher.Constraint("Vertical", 5),
    Sketcher.Constraint("Horizontal", 6),
    Sketcher.Constraint("Vertical", 7),
    Sketcher.Constraint("Horizontal", 8),
    Sketcher.Constraint("Vertical", 9),
    Sketcher.Constraint("Horizontal", 10),
    Sketcher.Constraint("Vertical", 11),
    Sketcher.Constraint("Horizontal", 12),
    Sketcher.Constraint("Vertical", 13),
    Sketcher.Constraint("Horizontal", 14),
    Sketcher.Constraint("Vertical", 15),
    Sketcher.Constraint("Horizontal", 3, 2, 8, 2),
    Sketcher.Constraint("Horizontal", 2, 2, 9, 2),
    Sketcher.Constraint("Horizontal", 7, 2, 12, 2),
    Sketcher.Constraint("Horizontal", 6, 2, 13, 2),
    Sketcher.Constraint("Vertical", 1, 2, 4, 2),
    Sketcher.Constraint("Vertical", 3, 2, 6, 2),
    Sketcher.Constraint("Vertical", 9, 2, 12, 2),
    Sketcher.Constraint("Vertical", 11, 2, 14, 2),
    Sketcher.Constraint("Equal", 6, 8),
    Sketcher.Constraint("Equal", 3, 5),
    Sketcher.Constraint("DistanceX", 0, 1, 0, 2, Q("10 mm")),
    Sketcher.Constraint("DistanceY", 1, 2, 1, 1, Q("7 mm")),
    Sketcher.Constraint("DistanceX", -1, 1, 2, 2, Q("40 mm")),
    Sketcher.Constraint("DistanceX", 8, 2, -1, 1, Q("35 mm")),
    Sketcher.Constraint("DistanceY", 4, 2, 1, 2, Q("61 mm")),
    Sketcher.Constraint("DistanceY", -1, 1, 0, 2, Q("12.75 mm")),
])
sketch7.setExpression("Constraints[42]", "Params.sketch7_width")
sketch7.setExpression("Constraints[43]", "Params.sketch7_height")
pad3 = doc.addObject("PartDesign::Pad", "Pad002")
body.addObject(pad3)
pad3.Profile = sketch7
pad3.setExpression("Length", "Params.pad3_length")
pad3.Reversed = True

# Sketch on XY plane
sketch8 = doc.addObject("Sketcher::SketchObject", "Sketch007")
body.addObject(sketch8)
sketch8.AttachmentSupport = (doc.XY_Plane, [""])
sketch8.MapMode = "FlatFace"
sketch8.AttachmentOffset = App.Placement(Vector(0, 0, -13.5), App.Rotation())
sketch8.addGeometry([
    Part.Circle(Vector(45, 9.2, 0), Vector(0, 0, 1), 1.1),
    Part.Circle(Vector(-40, 9.2, 0), Vector(0, 0, 1), 1.1),
    Part.Circle(Vector(-40, -58.8, 0), Vector(0, 0, 1), 1.1),
    Part.Circle(Vector(45, -58.8, 0), Vector(0, 0, 1), 1.1),
], False)
sketch8.addConstraint([
    Sketcher.Constraint("Equal", 0, 1),
    Sketcher.Constraint("Equal", 1, 2),
    Sketcher.Constraint("Equal", 2, 3),
    Sketcher.Constraint("Horizontal", 0, 3, 1, 3),
    Sketcher.Constraint("Horizontal", 2, 3, 3, 3),
    Sketcher.Constraint("Vertical", 1, 3, 2, 3),
    Sketcher.Constraint("Vertical", 0, 3, 3, 3),
    Sketcher.Constraint("Diameter", 0, Q("2.1 mm")),
    Sketcher.Constraint("DistanceX", -1, 1, 0, 3, Q("45 mm")),
    Sketcher.Constraint("DistanceX", 1, 3, -1, 1, Q("40 mm")),
    Sketcher.Constraint("DistanceY", 2, 3, 1, 3, Q("68 mm")),
    Sketcher.Constraint("DistanceY", -1, 1, 0, 3, Q("9.25 mm")),
])
sketch8.setExpression("Constraints[7]", "Params.sketch8_diameter")
doc.recompute()
hole3 = doc.addObject("PartDesign::Hole", "Hole002")
body.addObject(hole3)
hole3.Profile = sketch8
hole3.ThreadType = "None"
hole3.setExpression("Diameter", "Params.hole3_diameter")
hole3.DepthType = "Dimension"
hole3.setExpression("Depth", "Params.hole3_depth")
hole3.DrillPoint = "Angled"
hole3.DrillPointAngle = 118
hole3.Reversed = True

doc.recompute()
